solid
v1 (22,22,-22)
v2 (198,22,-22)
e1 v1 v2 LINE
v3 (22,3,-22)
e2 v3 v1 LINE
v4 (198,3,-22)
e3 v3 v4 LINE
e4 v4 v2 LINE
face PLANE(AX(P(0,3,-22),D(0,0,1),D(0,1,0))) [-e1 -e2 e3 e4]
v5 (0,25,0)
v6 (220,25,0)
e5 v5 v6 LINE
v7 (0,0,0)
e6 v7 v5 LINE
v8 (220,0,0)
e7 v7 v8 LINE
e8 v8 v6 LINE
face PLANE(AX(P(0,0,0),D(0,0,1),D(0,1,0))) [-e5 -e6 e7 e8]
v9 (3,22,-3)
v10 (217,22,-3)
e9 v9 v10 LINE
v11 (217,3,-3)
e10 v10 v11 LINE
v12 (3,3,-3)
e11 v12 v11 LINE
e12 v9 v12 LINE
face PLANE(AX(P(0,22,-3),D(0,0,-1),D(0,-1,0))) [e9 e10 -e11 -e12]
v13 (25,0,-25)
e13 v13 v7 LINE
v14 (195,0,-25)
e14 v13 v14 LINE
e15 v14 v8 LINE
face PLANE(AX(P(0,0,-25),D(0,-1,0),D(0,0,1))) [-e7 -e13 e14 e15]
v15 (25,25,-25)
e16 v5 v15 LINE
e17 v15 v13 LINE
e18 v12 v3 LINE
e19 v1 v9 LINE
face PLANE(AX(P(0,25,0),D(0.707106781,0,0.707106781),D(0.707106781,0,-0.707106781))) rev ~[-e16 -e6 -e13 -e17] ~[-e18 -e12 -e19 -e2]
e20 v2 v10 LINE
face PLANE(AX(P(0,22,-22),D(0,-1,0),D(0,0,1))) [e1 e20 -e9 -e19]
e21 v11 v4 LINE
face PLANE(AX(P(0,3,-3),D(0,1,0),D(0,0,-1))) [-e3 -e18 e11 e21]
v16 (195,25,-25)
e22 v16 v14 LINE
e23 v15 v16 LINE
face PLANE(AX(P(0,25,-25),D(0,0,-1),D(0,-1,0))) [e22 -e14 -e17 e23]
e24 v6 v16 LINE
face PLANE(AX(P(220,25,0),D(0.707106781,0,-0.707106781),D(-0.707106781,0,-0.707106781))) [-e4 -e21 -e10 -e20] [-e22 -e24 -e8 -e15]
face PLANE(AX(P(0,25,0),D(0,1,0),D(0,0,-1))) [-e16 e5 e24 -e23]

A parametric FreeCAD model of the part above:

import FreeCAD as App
import Part
import Sketcher
from FreeCAD import Vector


def add_polygon(sketch, points):
    """Adds a closed chain of lines whose ends are joined by coincident constraints."""
    first, n = sketch.GeometryCount, len(points)
    for a, b in zip(points, points[1:] + points[:1]):
        sketch.addGeometry(Part.LineSegment(App.Vector(*a, 0), App.Vector(*b, 0)), False)
    for i in range(n):
        sketch.addConstraint(Sketcher.Constraint("Coincident", first + i, 2, first + (i + 1) % n, 1))

doc = App.newDocument("Part")
params = doc.addObject("Spreadsheet::Sheet", "Params")
for row, (alias, value) in enumerate([
    ("sketch1_width", "25 mm"),
    ("pad1_length", "220 mm"),
    ("sketch2_width", "25 mm"),
    ("pocket1_length", "110 mm"),
], start=1):
    params.set(f"A{row}", alias)
    params.set(f"B{row}", "=" + value)
    params.setAlias(f"B{row}", alias)

body = doc.addObject("PartDesign::Body", "Body")

# Sketch on YZ plane
sketch1 = body.newObject("Sketcher::SketchObject", "Sketch")
sketch1.AttachmentSupport = (doc.getObject("YZ_Plane"), [""])
sketch1.MapMode = "FlatFace"
add_polygon(sketch1, [(25, 0), (0, 0), (0, -25), (25, -25)])  # lines 0-3
add_polygon(sketch1, [(22, -3), (22, -22), (3, -22), (3, -3)])  # lines 4-7
sketch1.addConstraint(Sketcher.Constraint("Horizontal", 0))
sketch1.addConstraint(Sketcher.Constraint("Vertical", 1))
sketch1.addConstraint(Sketcher.Constraint("Horizontal", 2))
sketch1.addConstraint(Sketcher.Constraint("Vertical", 3))
sketch1.addConstraint(Sketcher.Constraint("Vertical", 4))
sketch1.addConstraint(Sketcher.Constraint("Horizontal", 5))
sketch1.addConstraint(Sketcher.Constraint("Vertical", 6))
sketch1.addConstraint(Sketcher.Constraint("Horizontal", 7))
sketch1.addConstraint(Sketcher.Constraint("Coincident", 0, 2, -1, 1))
sketch1.addConstraint(Sketcher.Constraint("Equal", 2, 1))
sketch1.addConstraint(Sketcher.Constraint("Equal", 7, 4))
sketch1.addConstraint(Sketcher.Constraint("DistanceX", 0, 2, 0, 1, 25.0))
sketch1.addConstraint(Sketcher.Constraint("DistanceX", -1, 1, 5, 2, 3.0))
sketch1.addConstraint(Sketcher.Constraint("DistanceY", 6, 2, -1, 1, 3.0))
sketch1.addConstraint(Sketcher.Constraint("DistanceX", 4, 2, 2, 2, 3.0))
sketch1.setExpression("Constraints[19]", "Params.sketch1_width")
pad1 = body.newObject("PartDesign::Pad", "Pad")
pad1.Profile = sketch1
pad1.setExpression("Length", "Params.pad1_length")

# Sketch on XZ plane
sketch2 = body.newObject("Sketcher::SketchObject", "Sketch001")
sketch2.AttachmentSupport = (doc.getObject("XZ_Plane"), [""])
sketch2.MapMode = "FlatFace"
sketch2.AttachmentOffset = App.Placement(Vector(0, 0, -25), App.Rotation())
add_polygon(sketch2, [(25, -25), (0, -25), (0, 0)])  # lines 0-2
add_polygon(sketch2, [(195, -25), (220, 0), (220, -25)])  # lines 3-5
sketch2.addConstraint(Sketcher.Constraint("Horizontal", 0))
sketch2.addConstraint(Sketcher.Constraint("Vertical", 1))
sketch2.addConstraint(Sketcher.Constraint("Vertical", 4))
sketch2.addConstraint(Sketcher.Constraint("Horizontal", 5))
sketch2.addConstraint(Sketcher.Constraint("Coincident", 1, 2, -1, 1))
sketch2.addConstraint(Sketcher.Constraint("PointOnObject", 3, 2, -1))
sketch2.addConstraint(Sketcher.Constraint("Perpendicular", 2, 3))
sketch2.addConstraint(Sketcher.Constraint("Horizontal", 2, 2, 4, 2))
sketch2.addConstraint(Sketcher.Constraint("Equal", 0, 5))
sketch2.addConstraint(Sketcher.Constraint("DistanceX", 0, 2, 0, 1, 25.0))
sketch2.addConstraint(Sketcher.Constraint("DistanceX", -1, 1, 3, 2, 220.0))
sketch2.setExpression("Constraints[15]", "Params.sketch2_width")
pocket1 = body.newObject("PartDesign::Pocket", "Pocket")
pocket1.Profile = sketch2
pocket1.setExpression("Length", "Params.pocket1_length")
pocket1.Reversed = True

doc.recompute()
